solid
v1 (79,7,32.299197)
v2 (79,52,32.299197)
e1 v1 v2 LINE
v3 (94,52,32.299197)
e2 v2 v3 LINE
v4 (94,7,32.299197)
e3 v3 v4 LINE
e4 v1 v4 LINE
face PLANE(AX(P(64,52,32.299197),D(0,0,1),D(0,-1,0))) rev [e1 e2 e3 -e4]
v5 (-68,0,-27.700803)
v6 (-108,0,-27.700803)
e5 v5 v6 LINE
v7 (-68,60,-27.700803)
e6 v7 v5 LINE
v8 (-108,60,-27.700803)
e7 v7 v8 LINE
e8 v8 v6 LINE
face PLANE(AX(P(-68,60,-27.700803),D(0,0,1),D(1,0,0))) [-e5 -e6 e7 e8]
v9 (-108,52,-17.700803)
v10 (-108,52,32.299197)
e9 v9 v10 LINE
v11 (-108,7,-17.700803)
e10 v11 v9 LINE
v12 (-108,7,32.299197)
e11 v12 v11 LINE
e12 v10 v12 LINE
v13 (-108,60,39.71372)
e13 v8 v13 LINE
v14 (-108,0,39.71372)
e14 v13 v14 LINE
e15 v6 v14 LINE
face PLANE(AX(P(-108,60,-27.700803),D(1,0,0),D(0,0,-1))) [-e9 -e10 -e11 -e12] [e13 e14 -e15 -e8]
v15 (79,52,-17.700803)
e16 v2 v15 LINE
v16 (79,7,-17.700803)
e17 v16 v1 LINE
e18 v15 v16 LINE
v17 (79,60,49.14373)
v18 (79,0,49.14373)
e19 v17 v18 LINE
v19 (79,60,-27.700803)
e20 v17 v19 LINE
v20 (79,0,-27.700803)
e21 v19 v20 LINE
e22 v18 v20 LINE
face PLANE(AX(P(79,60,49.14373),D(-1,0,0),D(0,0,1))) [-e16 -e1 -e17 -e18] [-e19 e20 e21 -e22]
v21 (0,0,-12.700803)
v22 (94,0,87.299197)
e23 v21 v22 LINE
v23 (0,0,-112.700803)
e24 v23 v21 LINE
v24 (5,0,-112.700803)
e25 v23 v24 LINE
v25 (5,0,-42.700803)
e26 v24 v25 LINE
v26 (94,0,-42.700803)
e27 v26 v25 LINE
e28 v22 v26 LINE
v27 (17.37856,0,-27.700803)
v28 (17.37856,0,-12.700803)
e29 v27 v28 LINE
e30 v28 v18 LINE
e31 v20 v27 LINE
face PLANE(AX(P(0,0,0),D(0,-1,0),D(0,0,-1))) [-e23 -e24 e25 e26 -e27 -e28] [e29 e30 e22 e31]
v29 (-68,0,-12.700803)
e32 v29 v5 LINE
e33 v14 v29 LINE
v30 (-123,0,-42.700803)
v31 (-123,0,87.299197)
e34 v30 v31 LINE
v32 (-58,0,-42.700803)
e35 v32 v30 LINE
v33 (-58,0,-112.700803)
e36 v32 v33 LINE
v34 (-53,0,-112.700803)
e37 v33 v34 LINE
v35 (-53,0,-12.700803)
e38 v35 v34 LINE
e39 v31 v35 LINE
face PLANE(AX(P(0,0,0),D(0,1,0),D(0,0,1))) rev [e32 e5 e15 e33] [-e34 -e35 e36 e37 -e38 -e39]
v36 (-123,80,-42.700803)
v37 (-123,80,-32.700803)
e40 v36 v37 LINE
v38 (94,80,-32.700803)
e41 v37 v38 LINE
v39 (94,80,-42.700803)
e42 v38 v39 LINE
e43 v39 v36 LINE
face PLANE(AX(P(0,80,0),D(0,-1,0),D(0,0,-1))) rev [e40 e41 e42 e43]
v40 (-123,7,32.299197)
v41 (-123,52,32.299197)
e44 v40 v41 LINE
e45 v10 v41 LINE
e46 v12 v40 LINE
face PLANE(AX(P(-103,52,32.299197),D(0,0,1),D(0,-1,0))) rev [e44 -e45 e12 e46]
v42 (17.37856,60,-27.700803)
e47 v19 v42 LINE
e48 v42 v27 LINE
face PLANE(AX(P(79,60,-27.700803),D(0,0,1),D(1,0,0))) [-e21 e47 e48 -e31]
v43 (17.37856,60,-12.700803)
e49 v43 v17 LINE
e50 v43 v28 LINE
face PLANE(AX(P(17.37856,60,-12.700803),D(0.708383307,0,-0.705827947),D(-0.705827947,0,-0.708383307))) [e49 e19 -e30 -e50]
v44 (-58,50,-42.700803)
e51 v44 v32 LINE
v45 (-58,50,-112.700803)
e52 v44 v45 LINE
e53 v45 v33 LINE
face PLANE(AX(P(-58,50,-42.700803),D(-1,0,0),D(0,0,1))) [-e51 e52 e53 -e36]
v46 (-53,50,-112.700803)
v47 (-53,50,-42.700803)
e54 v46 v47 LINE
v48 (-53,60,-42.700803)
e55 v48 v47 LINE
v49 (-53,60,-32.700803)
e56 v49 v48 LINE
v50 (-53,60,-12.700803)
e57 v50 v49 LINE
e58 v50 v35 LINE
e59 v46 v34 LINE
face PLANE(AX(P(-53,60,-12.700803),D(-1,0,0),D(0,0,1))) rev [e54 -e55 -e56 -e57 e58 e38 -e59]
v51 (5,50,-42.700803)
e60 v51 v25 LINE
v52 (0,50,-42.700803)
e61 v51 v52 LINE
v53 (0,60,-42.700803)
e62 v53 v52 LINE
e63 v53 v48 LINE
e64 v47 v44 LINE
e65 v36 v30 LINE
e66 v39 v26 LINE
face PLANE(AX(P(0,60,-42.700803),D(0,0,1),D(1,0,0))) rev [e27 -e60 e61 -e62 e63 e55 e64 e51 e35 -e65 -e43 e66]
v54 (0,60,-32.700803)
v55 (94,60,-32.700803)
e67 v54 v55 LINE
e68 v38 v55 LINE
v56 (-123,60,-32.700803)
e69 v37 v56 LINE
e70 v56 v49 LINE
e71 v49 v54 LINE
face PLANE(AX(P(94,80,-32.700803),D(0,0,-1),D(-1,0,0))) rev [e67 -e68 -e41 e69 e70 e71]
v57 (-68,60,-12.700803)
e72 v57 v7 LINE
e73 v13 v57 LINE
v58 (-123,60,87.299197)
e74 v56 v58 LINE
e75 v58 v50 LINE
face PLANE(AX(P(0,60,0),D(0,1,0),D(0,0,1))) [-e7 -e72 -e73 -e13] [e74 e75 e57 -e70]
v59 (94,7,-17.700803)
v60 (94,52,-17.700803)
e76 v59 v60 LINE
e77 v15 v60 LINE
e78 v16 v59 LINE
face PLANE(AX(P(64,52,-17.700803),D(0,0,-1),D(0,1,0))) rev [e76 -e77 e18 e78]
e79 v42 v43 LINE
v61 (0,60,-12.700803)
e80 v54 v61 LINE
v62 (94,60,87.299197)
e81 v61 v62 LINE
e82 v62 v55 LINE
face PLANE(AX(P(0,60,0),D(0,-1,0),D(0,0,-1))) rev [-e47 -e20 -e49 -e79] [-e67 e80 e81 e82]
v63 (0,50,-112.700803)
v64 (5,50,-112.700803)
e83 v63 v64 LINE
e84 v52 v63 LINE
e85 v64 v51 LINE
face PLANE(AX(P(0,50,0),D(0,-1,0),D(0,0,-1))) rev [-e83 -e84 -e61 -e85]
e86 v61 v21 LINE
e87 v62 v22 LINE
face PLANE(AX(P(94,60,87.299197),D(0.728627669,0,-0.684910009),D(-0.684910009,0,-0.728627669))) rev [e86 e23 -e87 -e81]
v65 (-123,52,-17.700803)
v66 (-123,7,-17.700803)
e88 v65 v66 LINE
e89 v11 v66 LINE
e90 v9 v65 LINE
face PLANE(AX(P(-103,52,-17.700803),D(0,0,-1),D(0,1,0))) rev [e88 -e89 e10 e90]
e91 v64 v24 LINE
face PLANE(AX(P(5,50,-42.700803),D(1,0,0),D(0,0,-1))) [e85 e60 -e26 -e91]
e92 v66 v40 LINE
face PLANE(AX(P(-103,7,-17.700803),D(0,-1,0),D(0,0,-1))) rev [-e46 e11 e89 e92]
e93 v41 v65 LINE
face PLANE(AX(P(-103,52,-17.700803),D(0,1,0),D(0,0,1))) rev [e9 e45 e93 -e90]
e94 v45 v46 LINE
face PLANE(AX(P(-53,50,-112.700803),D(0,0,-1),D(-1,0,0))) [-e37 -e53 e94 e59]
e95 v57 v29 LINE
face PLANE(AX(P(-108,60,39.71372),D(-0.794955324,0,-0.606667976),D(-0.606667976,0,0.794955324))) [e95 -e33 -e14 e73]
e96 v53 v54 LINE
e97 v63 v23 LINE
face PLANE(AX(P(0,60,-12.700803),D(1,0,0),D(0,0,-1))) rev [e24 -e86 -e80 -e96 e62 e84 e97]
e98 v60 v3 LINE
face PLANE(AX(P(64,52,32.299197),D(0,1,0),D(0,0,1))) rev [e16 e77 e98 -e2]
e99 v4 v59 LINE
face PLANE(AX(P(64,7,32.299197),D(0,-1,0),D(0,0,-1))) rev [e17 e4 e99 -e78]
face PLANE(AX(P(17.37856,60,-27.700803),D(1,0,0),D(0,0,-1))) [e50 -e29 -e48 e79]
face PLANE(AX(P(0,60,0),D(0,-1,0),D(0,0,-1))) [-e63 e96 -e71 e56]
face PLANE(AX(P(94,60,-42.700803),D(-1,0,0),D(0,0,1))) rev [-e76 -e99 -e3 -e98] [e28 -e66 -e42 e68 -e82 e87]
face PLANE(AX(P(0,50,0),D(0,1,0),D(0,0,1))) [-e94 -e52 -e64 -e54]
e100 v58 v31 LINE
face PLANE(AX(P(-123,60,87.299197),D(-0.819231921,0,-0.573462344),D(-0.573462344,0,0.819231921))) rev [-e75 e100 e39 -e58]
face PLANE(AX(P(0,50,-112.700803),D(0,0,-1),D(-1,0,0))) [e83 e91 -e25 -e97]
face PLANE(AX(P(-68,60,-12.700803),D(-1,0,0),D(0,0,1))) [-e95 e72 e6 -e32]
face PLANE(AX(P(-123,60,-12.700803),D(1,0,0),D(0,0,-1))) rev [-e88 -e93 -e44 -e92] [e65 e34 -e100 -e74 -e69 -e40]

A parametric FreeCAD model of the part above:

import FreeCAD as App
import Part
import Sketcher
from FreeCAD import Vector

doc = App.newDocument("Part")
params = doc.addObject("Spreadsheet::Sheet", "Params")
for row, (alias, value) in enumerate([
    ("sketch1_width", "94 mm"),
    ("sketch1_height", "30 mm"),
    ("sketch1_height2", "130 mm"),
    ("sketch1_height3", "15 mm"),
    ("pad1_length", "60 mm"),
    ("sketch2_width", "70 mm"),
    ("sketch2_width2", "40 mm"),
    ("sketch2_height", "30 mm"),
    ("sketch2_height2", "130 mm"),
    ("sketch2_height3", "15 mm"),
    ("pad2_length", "60 mm"),
    ("sketch3_width", "217 mm"),
    ("sketch3_height", "10 mm"),
    ("pad3_length", "20 mm"),
    ("sketch4_width", "5 mm"),
    ("sketch4_height", "70 mm"),
    ("pad4_length", "50 mm"),
    ("sketch5_width", "5 mm"),
    ("sketch5_height", "70 mm"),
    ("pad5_length", "50 mm"),
    ("sketch6_width", "45 mm"),
    ("sketch6_height", "50 mm"),
    ("pocket1_length", "30 mm"),
    ("sketch7_width", "45 mm"),
    ("sketch7_height", "50 mm"),
    ("pocket2_length", "20 mm"),
], start=1):
    params.set(f"A{row}", alias)
    params.set(f"B{row}", "=" + value)
    params.setAlias(f"B{row}", alias)

body = doc.addObject("PartDesign::Body", "Body")

sketch1 = body.newObject("Sketcher::SketchObject", "Sketch")
sketch1.AttachmentSupport = (doc.getObject("XZ_Plane"), [""])
sketch1.MapMode = "FlatFace"
sketch1.addGeometry(Part.LineSegment(Vector(0, -43, 0), Vector(0, -13, 0)), False)
sketch1.addGeometry(Part.LineSegment(Vector(0, -13, 0), Vector(94, 87, 0)), False)
sketch1.addGeometry(Part.LineSegment(Vector(94, 87, 0), Vector(94, -43, 0)), False)
sketch1.addGeometry(Part.LineSegment(Vector(94, -43, 0), Vector(0, -43, 0)), False)
sketch1.addGeometry(Part.LineSegment(Vector(79, -28, 0), Vector(79, 49, 0)), False)
sketch1.addGeometry(Part.LineSegment(Vector(79, 49, 0), Vector(17, -13, 0)), False)
sketch1.addGeometry(Part.LineSegment(Vector(17, -13, 0), Vector(17, -28, 0)), False)
sketch1.addGeometry(Part.LineSegment(Vector(17, -28, 0), Vector(79, -28, 0)), False)
sketch1.addConstraint(Sketcher.Constraint("Coincident", 0, 2, 1, 1))
sketch1.addConstraint(Sketcher.Constraint("Coincident", 1, 2, 2, 1))
sketch1.addConstraint(Sketcher.Constraint("Coincident", 2, 2, 3, 1))
sketch1.addConstraint(Sketcher.Constraint("Coincident", 3, 2, 0, 1))
sketch1.addConstraint(Sketcher.Constraint("Coincident", 4, 2, 5, 1))
sketch1.addConstraint(Sketcher.Constraint("Coincident", 5, 2, 6, 1))
sketch1.addConstraint(Sketcher.Constraint("Coincident", 6, 2, 7, 1))
sketch1.addConstraint(Sketcher.Constraint("Coincident", 7, 2, 4, 1))
sketch1.addConstraint(Sketcher.Constraint("Vertical", 0))
sketch1.addConstraint(Sketcher.Constraint("Vertical", 2))
sketch1.addConstraint(Sketcher.Constraint("Horizontal", 3))
sketch1.addConstraint(Sketcher.Constraint("Vertical", 4))
sketch1.addConstraint(Sketcher.Constraint("Vertical", 6))
sketch1.addConstraint(Sketcher.Constraint("Horizontal", 7))
sketch1.addConstraint(Sketcher.Constraint("PointOnObject", 0, 2, -2))
sketch1.addConstraint(Sketcher.Constraint("Horizontal", 0, 2, 5, 2))
sketch1.addConstraint(Sketcher.Constraint("DistanceX", 3, 2, 3, 1, 94.0))
sketch1.addConstraint(Sketcher.Constraint("DistanceY", 0, 1, 0, 2, 30.0))
sketch1.addConstraint(Sketcher.Constraint("DistanceY", 2, 2, 2, 1, 130.0))
sketch1.addConstraint(Sketcher.Constraint("DistanceY", 6, 2, 6, 1, 15.0))
sketch1.addConstraint(Sketcher.Constraint("DistanceX", -1, 1, 4, 2, 79.0))
sketch1.addConstraint(Sketcher.Constraint("DistanceX", 7, 1, 7, 2, 61.62144))
sketch1.addConstraint(Sketcher.Constraint("Distance", 5, 87.303769))
sketch1.addConstraint(Sketcher.Constraint("DistanceY", -1, 1, 4, 2, 49.14373))
sketch1.setExpression("Constraints[16]", "Params.sketch1_width")
sketch1.setExpression("Constraints[17]", "Params.sketch1_height")
sketch1.setExpression("Constraints[18]", "Params.sketch1_height2")
sketch1.setExpression("Constraints[19]", "Params.sketch1_height3")
pad1 = body.newObject("PartDesign::Pad", "Pad")
pad1.Profile = sketch1
pad1.setExpression("Length", "Params.pad1_length")
pad1.Reversed = True
body2 = doc.addObject("PartDesign::Body", "Body001")

sketch2 = body2.newObject("Sketcher::SketchObject", "Sketch001")
sketch2.AttachmentSupport = (doc.getObject("XZ_Plane001"), [""])
sketch2.MapMode = "FlatFace"
sketch2.addGeometry(Part.LineSegment(Vector(-123, 87, 0), Vector(-53, -13, 0)), False)
sketch2.addGeometry(Part.LineSegment(Vector(-53, -13, 0), Vector(-53, -43, 0)), False)
sketch2.addGeometry(Part.LineSegment(Vector(-53, -43, 0), Vector(-123, -43, 0)), False)
sketch2.addGeometry(Part.LineSegment(Vector(-123, -43, 0), Vector(-123, 87, 0)), False)
sketch2.addGeometry(Part.LineSegment(Vector(-108, 40, 0), Vector(-108, -28, 0)), False)
sketch2.addGeometry(Part.LineSegment(Vector(-108, -28, 0), Vector(-68, -28, 0)), False)
sketch2.addGeometry(Part.LineSegment(Vector(-68, -28, 0), Vector(-68, -13, 0)), False)
sketch2.addGeometry(Part.LineSegment(Vector(-68, -13, 0), Vector(-108, 40, 0)), False)
sketch2.addConstraint(Sketcher.Constraint("Coincident", 0, 2, 1, 1))
sketch2.addConstraint(Sketcher.Constraint("Coincident", 1, 2, 2, 1))
sketch2.addConstraint(Sketcher.Constraint("Coincident", 2, 2, 3, 1))
sketch2.addConstraint(Sketcher.Constraint("Coincident", 3, 2, 0, 1))
sketch2.addConstraint(Sketcher.Constraint("Coincident", 4, 2, 5, 1))
sketch2.addConstraint(Sketcher.Constraint("Coincident", 5, 2, 6, 1))
sketch2.addConstraint(Sketcher.Constraint("Coincident", 6, 2, 7, 1))
sketch2.addConstraint(Sketcher.Constraint("Coincident", 7, 2, 4, 1))
sketch2.addConstraint(Sketcher.Constraint("Vertical", 1))
sketch2.addConstraint(Sketcher.Constraint("Horizontal", 2))
sketch2.addConstraint(Sketcher.Constraint("Vertical", 3))
sketch2.addConstraint(Sketcher.Constraint("Vertical", 4))
sketch2.addConstraint(Sketcher.Constraint("Horizontal", 5))
sketch2.addConstraint(Sketcher.Constraint("Vertical", 6))
sketch2.addConstraint(Sketcher.Constraint("Horizontal", 0, 2, 6, 2))
sketch2.addConstraint(Sketcher.Constraint("DistanceX", 2, 2, 2, 1, 70.0))
sketch2.addConstraint(Sketcher.Constraint("DistanceX", 5, 1, 5, 2, 40.0))
sketch2.addConstraint(Sketcher.Constraint("DistanceY", 1, 2, 1, 1, 30.0))
sketch2.addConstraint(Sketcher.Constraint("DistanceY", 3, 1, 3, 2, 130.0))
sketch2.addConstraint(Sketcher.Constraint("DistanceY", 6, 1, 6, 2, 15.0))
sketch2.addConstraint(Sketcher.Constraint("DistanceX", 0, 2, -1, 1, 53.0))
sketch2.addConstraint(Sketcher.Constraint("DistanceX", 4, 2, -1, 1, 108.0))
sketch2.addConstraint(Sketcher.Constraint("DistanceY", 4, 2, 4, 1, 67.414524))
sketch2.addConstraint(Sketcher.Constraint("DistanceY", -1, 1, 7, 2, 39.71372))
sketch2.setExpression("Constraints[15]", "Params.sketch2_width")
sketch2.setExpression("Constraints[16]", "Params.sketch2_width2")
sketch2.setExpression("Constraints[17]", "Params.sketch2_height")
sketch2.setExpression("Constraints[18]", "Params.sketch2_height2")
sketch2.setExpression("Constraints[19]", "Params.sketch2_height3")
pad2 = body2.newObject("PartDesign::Pad", "Pad001")
pad2.Profile = sketch2
pad2.setExpression("Length", "Params.pad2_length")
pad2.Reversed = True

sketch3 = body2.newObject("Sketcher::SketchObject", "Sketch002")
sketch3.AttachmentSupport = (doc.getObject("XZ_Plane001"), [""])
sketch3.MapMode = "FlatFace"
sketch3.AttachmentOffset = App.Placement(Vector(0, 0, -60), App.Rotation())
sketch3.addGeometry(Part.LineSegment(Vector(-123, -43, 0), Vector(-123, -33, 0)), False)
sketch3.addGeometry(Part.LineSegment(Vector(-123, -33, 0), Vector(94, -33, 0)), False)
sketch3.addGeometry(Part.LineSegment(Vector(94, -33, 0), Vector(94, -43, 0)), False)
sketch3.addGeometry(Part.LineSegment(Vector(94, -43, 0), Vector(-123, -43, 0)), False)
sketch3.addConstraint(Sketcher.Constraint("Coincident", 0, 2, 1, 1))
sketch3.addConstraint(Sketcher.Constraint("Coincident", 1, 2, 2, 1))
sketch3.addConstraint(Sketcher.Constraint("Coincident", 2, 2, 3, 1))
sketch3.addConstraint(Sketcher.Constraint("Coincident", 3, 2, 0, 1))
sketch3.addConstraint(Sketcher.Constraint("Vertical", 0))
sketch3.addConstraint(Sketcher.Constraint("Horizontal", 1))
sketch3.addConstraint(Sketcher.Constraint("Vertical", 2))
sketch3.addConstraint(Sketcher.Constraint("Horizontal", 3))
sketch3.addConstraint(Sketcher.Constraint("DistanceX", 1, 1, 1, 2, 217.0))
sketch3.addConstraint(Sketcher.Constraint("DistanceY", 0, 1, 0, 2, 10.0))
sketch3.addConstraint(Sketcher.Constraint("DistanceX", 0, 2, -1, 1, 123.0))
sketch3.addConstraint(Sketcher.Constraint("DistanceY", 0, 2, -1, 1, 32.700803))
sketch3.setExpression("Constraints[8]", "Params.sketch3_width")
sketch3.setExpression("Constraints[9]", "Params.sketch3_height")
pad3 = body2.newObject("PartDesign::Pad", "Pad002")
pad3.Profile = sketch3
pad3.setExpression("Length", "Params.pad3_length")
pad3.Reversed = True

sketch4 = body2.newObject("Sketcher::SketchObject", "Sketch003")
sketch4.AttachmentSupport = (doc.getObject("XZ_Plane001"), [""])
sketch4.MapMode = "FlatFace"
sketch4.addGeometry(Part.LineSegment(Vector(-53, -113, 0), Vector(-53, -43, 0)), False)
sketch4.addGeometry(Part.LineSegment(Vector(-53, -43, 0), Vector(-58, -43, 0)), False)
sketch4.addGeometry(Part.LineSegment(Vector(-58, -43, 0), Vector(-58, -113, 0)), False)
sketch4.addGeometry(Part.LineSegment(Vector(-58, -113, 0), Vector(-53, -113, 0)), False)
sketch4.addConstraint(Sketcher.Constraint("Coincident", 0, 2, 1, 1))
sketch4.addConstraint(Sketcher.Constraint("Coincident", 1, 2, 2, 1))
sketch4.addConstraint(Sketcher.Constraint("Coincident", 2, 2, 3, 1))
sketch4.addConstraint(Sketcher.Constraint("Coincident", 3, 2, 0, 1))
sketch4.addConstraint(Sketcher.Constraint("Vertical", 0))
sketch4.addConstraint(Sketcher.Constraint("Horizontal", 1))
sketch4.addConstraint(Sketcher.Constraint("Vertical", 2))
sketch4.addConstraint(Sketcher.Constraint("Horizontal", 3))
sketch4.addConstraint(Sketcher.Constraint("DistanceX", 1, 2, 1, 1, 5.0))
sketch4.addConstraint(Sketcher.Constraint("DistanceY", 0, 1, 0, 2, 70.0))
sketch4.addConstraint(Sketcher.Constraint("DistanceX", 0, 2, -1, 1, 53.0))
sketch4.addConstraint(Sketcher.Constraint("DistanceY", 0, 2, -1, 1, 42.700803))
sketch4.setExpression("Constraints[8]", "Params.sketch4_width")
sketch4.setExpression("Constraints[9]", "Params.sketch4_height")
pad4 = body2.newObject("PartDesign::Pad", "Pad003")
pad4.Profile = sketch4
pad4.setExpression("Length", "Params.pad4_length")
pad4.Reversed = True
doc.recompute()

boolean = body.newObject("PartDesign::Boolean", "Boolean")
boolean.Type = "Fuse"
boolean.addObjects([body2])

sketch5 = body.newObject("Sketcher::SketchObject", "Sketch004")
sketch5.AttachmentSupport = (doc.getObject("XZ_Plane"), [""])
sketch5.MapMode = "FlatFace"
sketch5.addGeometry(Part.LineSegment(Vector(5, -113, 0), Vector(5, -43, 0)), False)
sketch5.addGeometry(Part.LineSegment(Vector(5, -43, 0), Vector(0, -43, 0)), False)
sketch5.addGeometry(Part.LineSegment(Vector(0, -43, 0), Vector(0, -113, 0)), False)
sketch5.addGeometry(Part.LineSegment(Vector(0, -113, 0), Vector(5, -113, 0)), False)
sketch5.addConstraint(Sketcher.Constraint("Coincident", 0, 2, 1, 1))
sketch5.addConstraint(Sketcher.Constraint("Coincident", 1, 2, 2, 1))
sketch5.addConstraint(Sketcher.Constraint("Coincident", 2, 2, 3, 1))
sketch5.addConstraint(Sketcher.Constraint("Coincident", 3, 2, 0, 1))
sketch5.addConstraint(Sketcher.Constraint("Vertical", 0))
sketch5.addConstraint(Sketcher.Constraint("Horizontal", 1))
sketch5.addConstraint(Sketcher.Constraint("Vertical", 2))
sketch5.addConstraint(Sketcher.Constraint("Horizontal", 3))
sketch5.addConstraint(Sketcher.Constraint("PointOnObject", 1, 2, -2))
sketch5.addConstraint(Sketcher.Constraint("DistanceX", 1, 2, 1, 1, 5.0))
sketch5.addConstraint(Sketcher.Constraint("DistanceY", 0, 1, 0, 2, 70.0))
sketch5.addConstraint(Sketcher.Constraint("DistanceY", 0, 2, -1, 1, 42.700803))
sketch5.setExpression("Constraints[9]", "Params.sketch5_width")
sketch5.setExpression("Constraints[10]", "Params.sketch5_height")
pad5 = body.newObject("PartDesign::Pad", "Pad004")
pad5.Profile = sketch5
pad5.setExpression("Length", "Params.pad5_length")
pad5.Reversed = True

sketch6 = body.newObject("Sketcher::SketchObject", "Sketch005")
sketch6.AttachmentSupport = (doc.getObject("YZ_Plane"), [""])
sketch6.MapMode = "FlatFace"
sketch6.AttachmentOffset = App.Placement(Vector(0, 0, 94), App.Rotation())
sketch6.addGeometry(Part.LineSegment(Vector(52, 32, 0), Vector(7, 32, 0)), False)
sketch6.addGeometry(Part.LineSegment(Vector(7, 32, 0), Vector(7, -18, 0)), False)
sketch6.addGeometry(Part.LineSegment(Vector(7, -18, 0), Vector(52, -18, 0)), False)
sketch6.addGeometry(Part.LineSegment(Vector(52, -18, 0), Vector(52, 32, 0)), False)
sketch6.addConstraint(Sketcher.Constraint("Coincident", 0, 2, 1, 1))
sketch6.addConstraint(Sketcher.Constraint("Coincident", 1, 2, 2, 1))
sketch6.addConstraint(Sketcher.Constraint("Coincident", 2, 2, 3, 1))
sketch6.addConstraint(Sketcher.Constraint("Coincident", 3, 2, 0, 1))
sketch6.addConstraint(Sketcher.Constraint("Horizontal", 0))
sketch6.addConstraint(Sketcher.Constraint("Vertical", 1))
sketch6.addConstraint(Sketcher.Constraint("Horizontal", 2))
sketch6.addConstraint(Sketcher.Constraint("Vertical", 3))
sketch6.addConstraint(Sketcher.Constraint("DistanceX", 0, 2, 0, 1, 45.0))
sketch6.addConstraint(Sketcher.Constraint("DistanceY", 1, 2, 1, 1, 50.0))
sketch6.addConstraint(Sketcher.Constraint("DistanceX", -1, 1, 0, 2, 7.0))
sketch6.addConstraint(Sketcher.Constraint("DistanceY", -1, 1, 0, 2, 32.299197))
sketch6.setExpression("Constraints[8]", "Params.sketch6_width")
sketch6.setExpression("Constraints[9]", "Params.sketch6_height")
pocket1 = body.newObject("PartDesign::Pocket", "Pocket")
pocket1.Profile = sketch6
pocket1.setExpression("Length", "Params.pocket1_length")

sketch7 = body.newObject("Sketcher::SketchObject", "Sketch006")
sketch7.AttachmentSupport = (doc.getObject("YZ_Plane"), [""])
sketch7.MapMode = "FlatFace"
sketch7.AttachmentOffset = App.Placement(Vector(0, 0, -123), App.Rotation())
sketch7.addGeometry(Part.LineSegment(Vector(52, -18, 0), Vector(7, -18, 0)), False)
sketch7.addGeometry(Part.LineSegment(Vector(7, -18, 0), Vector(7, 32, 0)), False)
sketch7.addGeometry(Part.LineSegment(Vector(7, 32, 0), Vector(52, 32, 0)), False)
sketch7.addGeometry(Part.LineSegment(Vector(52, 32, 0), Vector(52, -18, 0)), False)
sketch7.addConstraint(Sketcher.Constraint("Coincident", 0, 2, 1, 1))
sketch7.addConstraint(Sketcher.Constraint("Coincident", 1, 2, 2, 1))
sketch7.addConstraint(Sketcher.Constraint("Coincident", 2, 2, 3, 1))
sketch7.addConstraint(Sketcher.Constraint("Coincident", 3, 2, 0, 1))
sketch7.addConstraint(Sketcher.Constraint("Horizontal", 0))
sketch7.addConstraint(Sketcher.Constraint("Vertical", 1))
sketch7.addConstraint(Sketcher.Constraint("Horizontal", 2))
sketch7.addConstraint(Sketcher.Constraint("Vertical", 3))
sketch7.addConstraint(Sketcher.Constraint("DistanceX", 0, 2, 0, 1, 45.0))
sketch7.addConstraint(Sketcher.Constraint("DistanceY", 1, 1, 1, 2, 50.0))
sketch7.addConstraint(Sketcher.Constraint("DistanceX", -1, 1, 0, 2, 7.0))
sketch7.addConstraint(Sketcher.Constraint("DistanceY", 0, 2, -1, 1, 17.700803))
sketch7.setExpression("Constraints[8]", "Params.sketch7_width")
sketch7.setExpression("Constraints[9]", "Params.sketch7_height")
pocket2 = body.newObject("PartDesign::Pocket", "Pocket001")
pocket2.Profile = sketch7
pocket2.setExpression("Length", "Params.pocket2_length")
pocket2.Reversed = True

doc.recompute()
